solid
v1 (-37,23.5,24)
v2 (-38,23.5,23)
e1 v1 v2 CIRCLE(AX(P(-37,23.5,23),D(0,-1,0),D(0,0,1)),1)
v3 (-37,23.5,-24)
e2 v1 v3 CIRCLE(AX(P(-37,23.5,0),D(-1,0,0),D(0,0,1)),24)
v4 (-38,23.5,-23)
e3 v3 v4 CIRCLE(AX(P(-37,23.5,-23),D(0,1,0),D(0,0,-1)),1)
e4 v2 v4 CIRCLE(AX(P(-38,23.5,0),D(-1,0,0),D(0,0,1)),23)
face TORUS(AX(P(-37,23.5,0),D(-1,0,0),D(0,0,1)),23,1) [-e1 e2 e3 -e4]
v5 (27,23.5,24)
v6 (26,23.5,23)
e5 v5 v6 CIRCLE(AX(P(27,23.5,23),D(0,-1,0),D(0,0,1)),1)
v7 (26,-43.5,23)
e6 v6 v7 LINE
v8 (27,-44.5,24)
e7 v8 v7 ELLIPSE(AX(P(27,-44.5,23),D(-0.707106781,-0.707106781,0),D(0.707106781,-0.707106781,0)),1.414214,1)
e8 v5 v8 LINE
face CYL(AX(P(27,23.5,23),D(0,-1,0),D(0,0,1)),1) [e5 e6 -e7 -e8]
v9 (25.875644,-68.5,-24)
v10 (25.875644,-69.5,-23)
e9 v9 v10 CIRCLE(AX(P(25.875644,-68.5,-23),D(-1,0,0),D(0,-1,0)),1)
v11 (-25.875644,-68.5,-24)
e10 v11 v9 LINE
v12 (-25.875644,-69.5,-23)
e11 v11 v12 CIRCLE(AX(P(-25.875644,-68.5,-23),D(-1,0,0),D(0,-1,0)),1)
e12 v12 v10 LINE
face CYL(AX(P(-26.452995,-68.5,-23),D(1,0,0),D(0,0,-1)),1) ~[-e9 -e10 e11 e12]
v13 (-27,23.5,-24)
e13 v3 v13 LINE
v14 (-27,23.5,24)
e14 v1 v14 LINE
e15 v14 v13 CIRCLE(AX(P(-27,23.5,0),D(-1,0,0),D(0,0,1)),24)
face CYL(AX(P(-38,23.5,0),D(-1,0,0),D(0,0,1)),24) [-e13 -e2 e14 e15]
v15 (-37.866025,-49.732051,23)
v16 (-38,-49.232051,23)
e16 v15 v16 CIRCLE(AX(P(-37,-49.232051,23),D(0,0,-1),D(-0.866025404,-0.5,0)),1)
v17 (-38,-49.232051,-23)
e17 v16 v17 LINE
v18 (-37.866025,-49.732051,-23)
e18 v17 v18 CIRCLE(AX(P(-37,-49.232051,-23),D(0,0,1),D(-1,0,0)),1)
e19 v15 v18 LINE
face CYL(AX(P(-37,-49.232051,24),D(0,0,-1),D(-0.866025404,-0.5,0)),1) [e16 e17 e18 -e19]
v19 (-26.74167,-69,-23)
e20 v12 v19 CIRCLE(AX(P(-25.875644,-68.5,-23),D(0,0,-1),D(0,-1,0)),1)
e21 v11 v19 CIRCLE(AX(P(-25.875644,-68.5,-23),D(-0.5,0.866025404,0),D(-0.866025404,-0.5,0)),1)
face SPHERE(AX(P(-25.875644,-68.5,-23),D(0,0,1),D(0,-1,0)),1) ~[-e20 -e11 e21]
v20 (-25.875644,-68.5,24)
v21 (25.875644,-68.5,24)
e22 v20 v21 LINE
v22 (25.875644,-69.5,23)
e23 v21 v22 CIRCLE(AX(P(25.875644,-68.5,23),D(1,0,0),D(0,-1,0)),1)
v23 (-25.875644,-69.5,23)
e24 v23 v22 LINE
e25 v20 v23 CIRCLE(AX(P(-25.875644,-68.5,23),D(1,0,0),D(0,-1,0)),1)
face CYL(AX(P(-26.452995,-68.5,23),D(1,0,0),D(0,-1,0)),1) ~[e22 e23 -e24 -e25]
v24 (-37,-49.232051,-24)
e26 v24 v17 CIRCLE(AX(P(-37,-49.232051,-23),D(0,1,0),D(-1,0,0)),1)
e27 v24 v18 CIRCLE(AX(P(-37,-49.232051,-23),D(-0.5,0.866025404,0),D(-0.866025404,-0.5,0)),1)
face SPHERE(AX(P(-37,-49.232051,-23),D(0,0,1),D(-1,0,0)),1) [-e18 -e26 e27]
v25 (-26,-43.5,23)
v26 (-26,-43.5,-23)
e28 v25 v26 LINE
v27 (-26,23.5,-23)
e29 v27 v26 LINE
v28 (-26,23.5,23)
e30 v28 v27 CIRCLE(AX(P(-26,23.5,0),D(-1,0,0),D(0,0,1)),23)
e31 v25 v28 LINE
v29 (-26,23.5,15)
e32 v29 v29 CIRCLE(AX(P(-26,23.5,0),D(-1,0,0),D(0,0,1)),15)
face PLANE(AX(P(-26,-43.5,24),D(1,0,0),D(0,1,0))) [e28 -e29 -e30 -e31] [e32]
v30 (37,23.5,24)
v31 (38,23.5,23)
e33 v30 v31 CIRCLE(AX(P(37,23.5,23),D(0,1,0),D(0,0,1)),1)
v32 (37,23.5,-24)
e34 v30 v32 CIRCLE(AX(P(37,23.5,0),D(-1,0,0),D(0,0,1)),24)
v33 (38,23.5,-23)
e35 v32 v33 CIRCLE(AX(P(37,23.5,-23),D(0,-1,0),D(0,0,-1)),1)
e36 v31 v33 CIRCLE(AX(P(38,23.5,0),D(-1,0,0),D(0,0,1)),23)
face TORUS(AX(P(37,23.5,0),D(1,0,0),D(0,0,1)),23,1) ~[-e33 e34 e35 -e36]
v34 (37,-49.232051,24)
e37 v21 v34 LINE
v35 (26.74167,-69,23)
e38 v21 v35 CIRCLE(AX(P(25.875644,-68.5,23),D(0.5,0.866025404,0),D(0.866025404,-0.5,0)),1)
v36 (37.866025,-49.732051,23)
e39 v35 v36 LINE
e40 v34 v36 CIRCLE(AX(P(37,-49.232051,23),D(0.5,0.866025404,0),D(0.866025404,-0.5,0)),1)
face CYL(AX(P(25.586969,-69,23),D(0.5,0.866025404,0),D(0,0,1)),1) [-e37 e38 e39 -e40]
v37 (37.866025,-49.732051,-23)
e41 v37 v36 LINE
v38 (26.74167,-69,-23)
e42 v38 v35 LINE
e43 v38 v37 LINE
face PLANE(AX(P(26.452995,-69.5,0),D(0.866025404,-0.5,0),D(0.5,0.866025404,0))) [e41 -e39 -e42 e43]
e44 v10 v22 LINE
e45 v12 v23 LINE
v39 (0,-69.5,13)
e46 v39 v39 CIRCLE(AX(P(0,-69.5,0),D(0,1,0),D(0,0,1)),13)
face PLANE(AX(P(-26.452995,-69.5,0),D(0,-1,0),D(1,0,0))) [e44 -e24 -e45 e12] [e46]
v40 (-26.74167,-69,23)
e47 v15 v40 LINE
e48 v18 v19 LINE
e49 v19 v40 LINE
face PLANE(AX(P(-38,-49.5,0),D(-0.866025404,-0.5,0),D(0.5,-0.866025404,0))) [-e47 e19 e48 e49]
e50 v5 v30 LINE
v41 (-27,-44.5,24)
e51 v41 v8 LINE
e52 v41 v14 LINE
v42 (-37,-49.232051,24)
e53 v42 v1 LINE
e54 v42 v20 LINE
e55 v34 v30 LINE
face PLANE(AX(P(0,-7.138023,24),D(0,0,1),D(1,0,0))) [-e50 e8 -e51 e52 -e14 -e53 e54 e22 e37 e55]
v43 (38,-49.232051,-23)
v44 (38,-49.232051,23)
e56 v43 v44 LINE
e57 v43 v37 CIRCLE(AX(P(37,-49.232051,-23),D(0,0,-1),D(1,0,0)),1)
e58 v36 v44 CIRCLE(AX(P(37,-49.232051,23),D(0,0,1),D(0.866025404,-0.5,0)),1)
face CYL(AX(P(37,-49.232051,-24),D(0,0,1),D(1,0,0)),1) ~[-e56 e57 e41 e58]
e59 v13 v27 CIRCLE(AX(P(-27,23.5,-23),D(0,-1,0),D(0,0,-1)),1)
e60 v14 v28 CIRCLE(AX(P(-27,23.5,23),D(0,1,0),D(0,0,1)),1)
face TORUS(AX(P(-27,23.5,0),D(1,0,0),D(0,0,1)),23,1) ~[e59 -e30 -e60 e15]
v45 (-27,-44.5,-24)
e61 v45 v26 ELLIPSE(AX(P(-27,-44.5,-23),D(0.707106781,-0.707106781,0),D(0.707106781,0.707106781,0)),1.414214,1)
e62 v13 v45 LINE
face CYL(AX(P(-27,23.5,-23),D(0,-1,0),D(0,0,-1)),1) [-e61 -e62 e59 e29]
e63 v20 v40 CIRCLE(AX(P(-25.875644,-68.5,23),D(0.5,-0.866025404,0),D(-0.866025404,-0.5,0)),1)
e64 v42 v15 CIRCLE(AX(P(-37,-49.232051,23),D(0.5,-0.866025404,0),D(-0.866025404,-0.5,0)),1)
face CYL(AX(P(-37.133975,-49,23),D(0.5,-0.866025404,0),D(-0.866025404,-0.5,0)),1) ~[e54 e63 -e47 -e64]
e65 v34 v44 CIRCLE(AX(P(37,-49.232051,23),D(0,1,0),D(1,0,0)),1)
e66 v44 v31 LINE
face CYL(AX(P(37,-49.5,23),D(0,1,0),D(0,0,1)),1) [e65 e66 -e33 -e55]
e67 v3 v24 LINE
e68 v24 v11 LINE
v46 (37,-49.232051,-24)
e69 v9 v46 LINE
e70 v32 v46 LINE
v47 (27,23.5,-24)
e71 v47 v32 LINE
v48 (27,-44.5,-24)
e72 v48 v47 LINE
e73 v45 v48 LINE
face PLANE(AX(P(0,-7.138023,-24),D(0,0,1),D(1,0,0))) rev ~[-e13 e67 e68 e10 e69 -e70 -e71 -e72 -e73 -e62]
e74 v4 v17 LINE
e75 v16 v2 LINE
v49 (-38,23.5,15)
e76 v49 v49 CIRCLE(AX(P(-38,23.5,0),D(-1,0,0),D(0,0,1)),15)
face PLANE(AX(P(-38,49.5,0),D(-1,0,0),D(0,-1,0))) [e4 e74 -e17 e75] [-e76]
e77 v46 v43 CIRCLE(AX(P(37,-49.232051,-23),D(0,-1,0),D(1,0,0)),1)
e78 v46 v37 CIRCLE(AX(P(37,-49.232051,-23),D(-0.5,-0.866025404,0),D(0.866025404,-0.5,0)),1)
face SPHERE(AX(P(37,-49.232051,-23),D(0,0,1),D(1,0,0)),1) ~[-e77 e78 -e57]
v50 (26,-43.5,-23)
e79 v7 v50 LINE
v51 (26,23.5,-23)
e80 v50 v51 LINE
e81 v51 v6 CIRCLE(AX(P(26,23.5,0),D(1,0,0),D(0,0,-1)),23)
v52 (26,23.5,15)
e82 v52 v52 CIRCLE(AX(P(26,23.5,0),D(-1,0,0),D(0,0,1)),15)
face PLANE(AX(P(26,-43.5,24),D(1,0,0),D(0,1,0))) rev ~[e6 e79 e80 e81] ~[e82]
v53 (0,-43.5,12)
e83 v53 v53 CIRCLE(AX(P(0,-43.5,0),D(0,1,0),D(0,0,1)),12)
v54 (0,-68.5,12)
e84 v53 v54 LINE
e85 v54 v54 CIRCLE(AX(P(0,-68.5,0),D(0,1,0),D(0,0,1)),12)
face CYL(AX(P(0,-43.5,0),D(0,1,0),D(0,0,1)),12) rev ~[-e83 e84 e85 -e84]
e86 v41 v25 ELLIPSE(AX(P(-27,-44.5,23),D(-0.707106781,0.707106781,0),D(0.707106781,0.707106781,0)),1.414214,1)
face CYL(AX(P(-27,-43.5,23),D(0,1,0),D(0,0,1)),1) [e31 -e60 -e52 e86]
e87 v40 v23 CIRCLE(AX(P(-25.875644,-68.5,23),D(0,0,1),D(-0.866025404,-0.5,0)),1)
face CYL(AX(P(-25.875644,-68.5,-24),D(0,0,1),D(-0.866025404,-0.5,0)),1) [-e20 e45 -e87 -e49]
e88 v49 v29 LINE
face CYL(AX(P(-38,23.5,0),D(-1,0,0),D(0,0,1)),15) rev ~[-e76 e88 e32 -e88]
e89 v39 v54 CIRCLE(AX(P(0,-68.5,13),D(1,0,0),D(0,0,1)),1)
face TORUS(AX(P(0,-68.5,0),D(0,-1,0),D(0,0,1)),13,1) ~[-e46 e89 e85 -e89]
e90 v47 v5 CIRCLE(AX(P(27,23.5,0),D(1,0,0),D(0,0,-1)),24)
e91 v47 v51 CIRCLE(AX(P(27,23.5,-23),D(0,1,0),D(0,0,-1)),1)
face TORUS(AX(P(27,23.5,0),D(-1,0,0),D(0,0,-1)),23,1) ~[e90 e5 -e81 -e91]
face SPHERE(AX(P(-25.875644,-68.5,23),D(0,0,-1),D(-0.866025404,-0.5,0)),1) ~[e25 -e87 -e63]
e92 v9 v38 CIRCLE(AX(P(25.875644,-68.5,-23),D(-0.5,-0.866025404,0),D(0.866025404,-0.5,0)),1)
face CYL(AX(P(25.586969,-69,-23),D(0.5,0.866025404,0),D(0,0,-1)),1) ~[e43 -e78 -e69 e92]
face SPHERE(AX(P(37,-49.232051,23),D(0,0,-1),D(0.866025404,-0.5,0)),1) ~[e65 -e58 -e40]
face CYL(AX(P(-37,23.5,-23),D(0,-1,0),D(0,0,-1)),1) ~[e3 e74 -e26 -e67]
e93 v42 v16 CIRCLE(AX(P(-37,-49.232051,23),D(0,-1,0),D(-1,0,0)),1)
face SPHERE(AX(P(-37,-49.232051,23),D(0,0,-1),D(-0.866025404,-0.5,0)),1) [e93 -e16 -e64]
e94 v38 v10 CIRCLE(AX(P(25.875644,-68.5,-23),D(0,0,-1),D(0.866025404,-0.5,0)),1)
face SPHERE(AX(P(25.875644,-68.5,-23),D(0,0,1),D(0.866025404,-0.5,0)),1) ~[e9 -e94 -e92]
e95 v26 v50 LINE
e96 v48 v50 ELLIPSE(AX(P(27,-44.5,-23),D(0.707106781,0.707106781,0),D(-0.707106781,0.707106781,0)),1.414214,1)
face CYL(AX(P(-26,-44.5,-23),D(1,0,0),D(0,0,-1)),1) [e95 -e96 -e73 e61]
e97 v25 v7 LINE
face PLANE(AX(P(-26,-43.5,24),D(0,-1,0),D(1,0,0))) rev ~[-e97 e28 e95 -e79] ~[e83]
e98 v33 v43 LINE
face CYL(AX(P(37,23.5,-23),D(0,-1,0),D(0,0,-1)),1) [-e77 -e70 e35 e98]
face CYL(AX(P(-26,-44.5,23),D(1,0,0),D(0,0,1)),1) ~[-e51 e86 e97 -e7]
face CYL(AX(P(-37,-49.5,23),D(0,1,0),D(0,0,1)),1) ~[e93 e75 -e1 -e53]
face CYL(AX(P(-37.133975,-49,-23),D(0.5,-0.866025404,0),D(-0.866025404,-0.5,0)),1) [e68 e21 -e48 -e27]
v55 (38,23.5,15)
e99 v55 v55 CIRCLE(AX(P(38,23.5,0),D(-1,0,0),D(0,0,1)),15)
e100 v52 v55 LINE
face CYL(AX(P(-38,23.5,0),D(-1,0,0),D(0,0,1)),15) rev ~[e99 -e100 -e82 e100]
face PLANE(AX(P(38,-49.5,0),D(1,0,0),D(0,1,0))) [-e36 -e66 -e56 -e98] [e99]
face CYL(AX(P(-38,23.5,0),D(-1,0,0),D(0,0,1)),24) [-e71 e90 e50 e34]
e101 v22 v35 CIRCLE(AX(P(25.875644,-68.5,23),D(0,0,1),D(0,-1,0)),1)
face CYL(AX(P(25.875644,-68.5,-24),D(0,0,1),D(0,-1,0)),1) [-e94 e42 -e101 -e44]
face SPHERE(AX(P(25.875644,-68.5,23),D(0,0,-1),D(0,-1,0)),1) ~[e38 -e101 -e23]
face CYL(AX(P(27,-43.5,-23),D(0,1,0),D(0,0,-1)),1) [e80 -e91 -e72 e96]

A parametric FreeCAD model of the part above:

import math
import FreeCAD as App
import Part
import Sketcher
from FreeCAD import Vector
Q = App.Units.Quantity


def edges_at(feature, points):
    """Names of the edges that pass closest to the given points."""
    edges = feature.Shape.Edges
    near = lambda p: min(range(len(edges)), key=lambda i: edges[i].distToShape(Part.Vertex(*p))[0])
    return sorted({f"Edge{near(p) + 1}" for p in points})

doc = App.newDocument("Part")
body = doc.addObject("PartDesign::Body", "Body")

# Sketch on XY plane
sketch1 = doc.addObject("Sketcher::SketchObject", "Sketch")
body.addObject(sketch1)
sketch1.AttachmentSupport = (doc.XY_Plane, [""])
sketch1.MapMode = "FlatFace"
sketch1.addGeometry([
    Part.LineSegment(Vector(-38, -49.5, 0), Vector(-26.452995, -69.5, 0)),  # 0
    Part.LineSegment(Vector(-26.452995, -69.5, 0), Vector(26.452995, -69.5, 0)),  # 1
    Part.LineSegment(Vector(26.452995, -69.5, 0), Vector(38, -49.5, 0)),  # 2
    Part.LineSegment(Vector(38, -49.5, 0), Vector(38, 49.5, 0)),  # 3
    Part.LineSegment(Vector(38, 49.5, 0), Vector(-38, 49.5, 0)),  # 4
    Part.LineSegment(Vector(-38, 49.5, 0), Vector(-38, -49.5, 0)),  # 5
], False)
sketch1.addConstraint([
    Sketcher.Constraint("Coincident", 0, 2, 1, 1),
    Sketcher.Constraint("Coincident", 1, 2, 2, 1),
    Sketcher.Constraint("Coincident", 2, 2, 3, 1),
    Sketcher.Constraint("Coincident", 3, 2, 4, 1),
    Sketcher.Constraint("Coincident", 4, 2, 5, 1),
    Sketcher.Constraint("Coincident", 5, 2, 0, 1),
    Sketcher.Constraint("Horizontal", 1),
    Sketcher.Constraint("Vertical", 3),
    Sketcher.Constraint("Horizontal", 4),
    Sketcher.Constraint("Vertical", 5),
    Sketcher.Constraint("Symmetric", 2, 2, 4, 2, -1, 1),
    Sketcher.Constraint("Horizontal", 2, 2, 5, 2),
    Sketcher.Constraint("Equal", 0, 2),
    Sketcher.Constraint("DistanceX", 4, 2, 4, 1, 76.0),
    Sketcher.Constraint("DistanceY", 3, 1, 3, 2, 99.0),
    Sketcher.Constraint("Angle", 0, Q("-60 deg")),
    Sketcher.Constraint("DistanceY", 1, 2, 2, 2, 20.0),
])
pad1 = doc.addObject("PartDesign::Pad", "Pad")
body.addObject(pad1)
pad1.Profile = sketch1
pad1.Length = 48
pad1.Midplane = True

# Sketch on XY plane
sketch2 = doc.addObject("Sketcher::SketchObject", "Sketch001")
body.addObject(sketch2)
sketch2.AttachmentSupport = (doc.XY_Plane, [""])
sketch2.MapMode = "FlatFace"
sketch2.AttachmentOffset = App.Placement(Vector(0, 0, 24), App.Rotation())
sketch2.addGeometry([
    Part.LineSegment(Vector(-26, 49.5, 0), Vector(-26, -43.5, 0)),
    Part.LineSegment(Vector(-26, -43.5, 0), Vector(26, -43.5, 0)),
    Part.LineSegment(Vector(26, -43.5, 0), Vector(26, 49.5, 0)),
    Part.LineSegment(Vector(26, 49.5, 0), Vector(-26, 49.5, 0)),
], False)
sketch2.addConstraint([
    Sketcher.Constraint("Coincident", 0, 2, 1, 1),
    Sketcher.Constraint("Coincident", 1, 2, 2, 1),
    Sketcher.Constraint("Coincident", 2, 2, 3, 1),
    Sketcher.Constraint("Coincident", 3, 2, 0, 1),
    Sketcher.Constraint("Vertical", 0),
    Sketcher.Constraint("Horizontal", 1),
    Sketcher.Constraint("Vertical", 2),
    Sketcher.Constraint("Horizontal", 3),
    Sketcher.Constraint("DistanceX", 1, 1, 1, 2, 52.0),
    Sketcher.Constraint("DistanceY", 0, 2, 0, 1, 93.0),
    Sketcher.Constraint("DistanceX", 0, 2, -1, 1, 26.0),
    Sketcher.Constraint("DistanceY", 0, 2, -1, 1, 43.5),
])
pocket1 = doc.addObject("PartDesign::Pocket", "Pocket")
body.addObject(pocket1)
pocket1.Profile = sketch2
pocket1.Length = 48

# Sketch on YZ plane
sketch3 = doc.addObject("Sketcher::SketchObject", "Sketch002")
body.addObject(sketch3)
sketch3.AttachmentSupport = (doc.YZ_Plane, [""])
sketch3.MapMode = "FlatFace"
sketch3.AttachmentOffset = App.Placement(Vector(0, 0, -38), App.Rotation())
sketch3.addGeometry([
    Part.LineSegment(Vector(49.5, -24, 0), Vector(23.5, -24, 0)),
    Part.ArcOfCircle(Part.Circle(Vector(23.5, 0, 0), Vector(0, 0, 1), 24), math.radians(-90), math.radians(90)),
    Part.LineSegment(Vector(23.5, 24, 0), Vector(49.5, 24, 0)),
    Part.LineSegment(Vector(49.5, 24, 0), Vector(49.5, -24, 0)),
], False)
sketch3.addConstraint([
    Sketcher.Constraint("Tangent", 0, 2, 1, 1),
    Sketcher.Constraint("Tangent", 1, 2, 2, 1),
    Sketcher.Constraint("Coincident", 2, 2, 3, 1),
    Sketcher.Constraint("Coincident", 3, 2, 0, 1),
    Sketcher.Constraint("Horizontal", 0),
    Sketcher.Constraint("Horizontal", 2),
    Sketcher.Constraint("Vertical", 3),
    Sketcher.Constraint("PointOnObject", 1, 3, -1),
    Sketcher.Constraint("Radius", 1, 24.0),
    Sketcher.Constraint("DistanceX", 0, 2, 0, 1, 26.0),
    Sketcher.Constraint("DistanceX", -1, 1, 1, 3, 23.5),
])
pocket2 = doc.addObject("PartDesign::Pocket", "Pocket001")
body.addObject(pocket2)
pocket2.Profile = sketch3
pocket2.Length = 105
pocket2.Reversed = True

# Sketch on YZ plane
sketch4 = doc.addObject("Sketcher::SketchObject", "Sketch003")
body.addObject(sketch4)
sketch4.AttachmentSupport = (doc.YZ_Plane, [""])
sketch4.MapMode = "FlatFace"
sketch4.AttachmentOffset = App.Placement(Vector(0, 0, -38), App.Rotation())
sketch4.addGeometry(Part.Circle(Vector(23.5, 0, 0), Vector(0, 0, 1), 15), False)
sketch4.addConstraint([
    Sketcher.Constraint("PointOnObject", 0, 3, -1),
    Sketcher.Constraint("Diameter", 0, 30.0),
    Sketcher.Constraint("DistanceX", -1, 1, 0, 3, 23.5),
])
pocket3 = doc.addObject("PartDesign::Pocket", "Pocket002")
body.addObject(pocket3)
pocket3.Profile = sketch4
pocket3.Length = 105
pocket3.Reversed = True

# Sketch on XZ plane
sketch5 = doc.addObject("Sketcher::SketchObject", "Sketch004")
body.addObject(sketch5)
sketch5.AttachmentSupport = (doc.XZ_Plane, [""])
sketch5.MapMode = "FlatFace"
sketch5.AttachmentOffset = App.Placement(Vector(0, 0, 43.5), App.Rotation())
sketch5.addGeometry(Part.Circle(Vector(0, 0, 0), Vector(0, 0, 1), 12), False)
sketch5.addConstraint([
    Sketcher.Constraint("Coincident", 0, 3, -1, 1),
    Sketcher.Constraint("Diameter", 0, 24.0),
])
pocket4 = doc.addObject("PartDesign::Pocket", "Pocket003")
body.addObject(pocket4)
pocket4.Profile = sketch5
pocket4.Length = 105
pocket4.Reversed = True
doc.recompute()

fillet = doc.addObject("PartDesign::Fillet", "Fillet")
body.addObject(fillet)
fillet.Base = (pocket4, edges_at(pocket4, [
    (38, -49.5, 0),
    (26.453, -69.5, 0),
    (-26.453, -69.5, 0),
    (-38, -49.5, 0),
    (-32.226, -59.5, 24),
    (0, -69.5, 24),
    (32.226, -59.5, 24),
    (26, -10, -24),
    (0, -43.5, -24),
    (0, -43.5, 24),
    (26, -10, 24),
    (-26, -10, 24),
    (-26, -10, -24),
    (-26, 47.5, 0),
    (-38, -13, -24),
    (-38, -13, 24),
    (38, 47.5, 0),
    (26, 47.5, 0),
    (38, -13, 24),
    (-38, 47.5, 0),
    (32.226, -59.5, -24),
    (0, -69.5, -24),
    (-32.226, -59.5, -24),
    (0, -69.5, -12),
    (38, -13, -24),
]))
fillet.Radius = 1

doc.recompute()
